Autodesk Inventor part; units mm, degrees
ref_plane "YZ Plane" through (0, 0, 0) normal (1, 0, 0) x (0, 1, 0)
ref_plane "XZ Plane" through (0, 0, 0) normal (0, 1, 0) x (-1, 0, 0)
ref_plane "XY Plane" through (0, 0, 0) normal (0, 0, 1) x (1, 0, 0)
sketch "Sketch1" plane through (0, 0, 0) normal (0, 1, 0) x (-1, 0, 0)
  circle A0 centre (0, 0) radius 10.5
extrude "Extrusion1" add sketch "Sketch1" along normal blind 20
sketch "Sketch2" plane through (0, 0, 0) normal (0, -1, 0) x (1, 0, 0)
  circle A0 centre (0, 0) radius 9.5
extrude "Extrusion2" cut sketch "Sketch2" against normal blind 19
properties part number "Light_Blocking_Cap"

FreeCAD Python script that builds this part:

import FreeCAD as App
import Part
import Sketcher

V = App.Vector
Q = App.Units.Quantity

doc = App.newDocument("Part")
body = doc.addObject("PartDesign::Body", "Body")

# Sketch on XZ plane
sketch1 = body.newObject("Sketcher::SketchObject", "Sketch")
sketch1.AttachmentSupport = (doc.getObject("XZ_Plane"), [""])
sketch1.MapMode = "FlatFace"
sketch1.addGeometry(Part.Circle(V(0, 0, 0), V(0, 0, 1), 10), False)
sketch1.addConstraint([
    Sketcher.Constraint("Coincident", 0, 3, -1, 1),
    Sketcher.Constraint("Diameter", 0, Q("21 mm")),
])
pad1 = body.newObject("PartDesign::Pad", "Pad")
pad1.Profile = sketch1
pad1.Length = 20
pad1.Reversed = True

# Sketch on XZ plane
sketch2 = body.newObject("Sketcher::SketchObject", "Sketch001")
sketch2.AttachmentSupport = (doc.getObject("XZ_Plane"), [""])
sketch2.MapMode = "FlatFace"
sketch2.addGeometry(Part.Circle(V(0, 0, 0), V(0, 0, 1), 10), False)
sketch2.addConstraint([
    Sketcher.Constraint("Coincident", 0, 3, -1, 1),
    Sketcher.Constraint("Diameter", 0, Q("19 mm")),
])
pocket1 = body.newObject("PartDesign::Pocket", "Pocket")
pocket1.Profile = sketch2
pocket1.Length = 19

doc.recompute()
